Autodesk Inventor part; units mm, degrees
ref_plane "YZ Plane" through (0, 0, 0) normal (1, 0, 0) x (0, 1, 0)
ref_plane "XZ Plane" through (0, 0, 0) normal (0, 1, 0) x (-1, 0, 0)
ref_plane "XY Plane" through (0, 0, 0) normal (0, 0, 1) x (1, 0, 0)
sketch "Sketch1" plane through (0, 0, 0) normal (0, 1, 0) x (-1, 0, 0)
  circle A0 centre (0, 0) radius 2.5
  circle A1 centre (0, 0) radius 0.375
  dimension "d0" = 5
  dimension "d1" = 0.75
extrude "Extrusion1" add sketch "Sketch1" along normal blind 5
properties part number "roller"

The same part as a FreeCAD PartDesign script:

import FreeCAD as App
import Part
import Sketcher

V = App.Vector

doc = App.newDocument("Part")
body = doc.addObject("PartDesign::Body", "Body")

# Sketch on XZ plane
sketch1 = body.newObject("Sketcher::SketchObject", "Sketch")
sketch1.AttachmentSupport = (doc.getObject("XZ_Plane"), [""])
sketch1.MapMode = "FlatFace"
sketch1.addGeometry([
    Part.Circle(V(0, 0, 0), V(0, 0, 1), 2.5),
    Part.Circle(V(0, 0, 0), V(0, 0, 1), 0.38),
], False)
sketch1.addConstraint([
    Sketcher.Constraint("Coincident", 0, 3, -1, 1),
    Sketcher.Constraint("Coincident", 1, 3, -1, 1),
    Sketcher.Constraint("Diameter", 0, 5.0),
    Sketcher.Constraint("Diameter", 1, 0.75),
])
pad1 = body.newObject("PartDesign::Pad", "Pad")
pad1.Profile = sketch1
pad1.Length = 5
pad1.Reversed = True

doc.recompute()
